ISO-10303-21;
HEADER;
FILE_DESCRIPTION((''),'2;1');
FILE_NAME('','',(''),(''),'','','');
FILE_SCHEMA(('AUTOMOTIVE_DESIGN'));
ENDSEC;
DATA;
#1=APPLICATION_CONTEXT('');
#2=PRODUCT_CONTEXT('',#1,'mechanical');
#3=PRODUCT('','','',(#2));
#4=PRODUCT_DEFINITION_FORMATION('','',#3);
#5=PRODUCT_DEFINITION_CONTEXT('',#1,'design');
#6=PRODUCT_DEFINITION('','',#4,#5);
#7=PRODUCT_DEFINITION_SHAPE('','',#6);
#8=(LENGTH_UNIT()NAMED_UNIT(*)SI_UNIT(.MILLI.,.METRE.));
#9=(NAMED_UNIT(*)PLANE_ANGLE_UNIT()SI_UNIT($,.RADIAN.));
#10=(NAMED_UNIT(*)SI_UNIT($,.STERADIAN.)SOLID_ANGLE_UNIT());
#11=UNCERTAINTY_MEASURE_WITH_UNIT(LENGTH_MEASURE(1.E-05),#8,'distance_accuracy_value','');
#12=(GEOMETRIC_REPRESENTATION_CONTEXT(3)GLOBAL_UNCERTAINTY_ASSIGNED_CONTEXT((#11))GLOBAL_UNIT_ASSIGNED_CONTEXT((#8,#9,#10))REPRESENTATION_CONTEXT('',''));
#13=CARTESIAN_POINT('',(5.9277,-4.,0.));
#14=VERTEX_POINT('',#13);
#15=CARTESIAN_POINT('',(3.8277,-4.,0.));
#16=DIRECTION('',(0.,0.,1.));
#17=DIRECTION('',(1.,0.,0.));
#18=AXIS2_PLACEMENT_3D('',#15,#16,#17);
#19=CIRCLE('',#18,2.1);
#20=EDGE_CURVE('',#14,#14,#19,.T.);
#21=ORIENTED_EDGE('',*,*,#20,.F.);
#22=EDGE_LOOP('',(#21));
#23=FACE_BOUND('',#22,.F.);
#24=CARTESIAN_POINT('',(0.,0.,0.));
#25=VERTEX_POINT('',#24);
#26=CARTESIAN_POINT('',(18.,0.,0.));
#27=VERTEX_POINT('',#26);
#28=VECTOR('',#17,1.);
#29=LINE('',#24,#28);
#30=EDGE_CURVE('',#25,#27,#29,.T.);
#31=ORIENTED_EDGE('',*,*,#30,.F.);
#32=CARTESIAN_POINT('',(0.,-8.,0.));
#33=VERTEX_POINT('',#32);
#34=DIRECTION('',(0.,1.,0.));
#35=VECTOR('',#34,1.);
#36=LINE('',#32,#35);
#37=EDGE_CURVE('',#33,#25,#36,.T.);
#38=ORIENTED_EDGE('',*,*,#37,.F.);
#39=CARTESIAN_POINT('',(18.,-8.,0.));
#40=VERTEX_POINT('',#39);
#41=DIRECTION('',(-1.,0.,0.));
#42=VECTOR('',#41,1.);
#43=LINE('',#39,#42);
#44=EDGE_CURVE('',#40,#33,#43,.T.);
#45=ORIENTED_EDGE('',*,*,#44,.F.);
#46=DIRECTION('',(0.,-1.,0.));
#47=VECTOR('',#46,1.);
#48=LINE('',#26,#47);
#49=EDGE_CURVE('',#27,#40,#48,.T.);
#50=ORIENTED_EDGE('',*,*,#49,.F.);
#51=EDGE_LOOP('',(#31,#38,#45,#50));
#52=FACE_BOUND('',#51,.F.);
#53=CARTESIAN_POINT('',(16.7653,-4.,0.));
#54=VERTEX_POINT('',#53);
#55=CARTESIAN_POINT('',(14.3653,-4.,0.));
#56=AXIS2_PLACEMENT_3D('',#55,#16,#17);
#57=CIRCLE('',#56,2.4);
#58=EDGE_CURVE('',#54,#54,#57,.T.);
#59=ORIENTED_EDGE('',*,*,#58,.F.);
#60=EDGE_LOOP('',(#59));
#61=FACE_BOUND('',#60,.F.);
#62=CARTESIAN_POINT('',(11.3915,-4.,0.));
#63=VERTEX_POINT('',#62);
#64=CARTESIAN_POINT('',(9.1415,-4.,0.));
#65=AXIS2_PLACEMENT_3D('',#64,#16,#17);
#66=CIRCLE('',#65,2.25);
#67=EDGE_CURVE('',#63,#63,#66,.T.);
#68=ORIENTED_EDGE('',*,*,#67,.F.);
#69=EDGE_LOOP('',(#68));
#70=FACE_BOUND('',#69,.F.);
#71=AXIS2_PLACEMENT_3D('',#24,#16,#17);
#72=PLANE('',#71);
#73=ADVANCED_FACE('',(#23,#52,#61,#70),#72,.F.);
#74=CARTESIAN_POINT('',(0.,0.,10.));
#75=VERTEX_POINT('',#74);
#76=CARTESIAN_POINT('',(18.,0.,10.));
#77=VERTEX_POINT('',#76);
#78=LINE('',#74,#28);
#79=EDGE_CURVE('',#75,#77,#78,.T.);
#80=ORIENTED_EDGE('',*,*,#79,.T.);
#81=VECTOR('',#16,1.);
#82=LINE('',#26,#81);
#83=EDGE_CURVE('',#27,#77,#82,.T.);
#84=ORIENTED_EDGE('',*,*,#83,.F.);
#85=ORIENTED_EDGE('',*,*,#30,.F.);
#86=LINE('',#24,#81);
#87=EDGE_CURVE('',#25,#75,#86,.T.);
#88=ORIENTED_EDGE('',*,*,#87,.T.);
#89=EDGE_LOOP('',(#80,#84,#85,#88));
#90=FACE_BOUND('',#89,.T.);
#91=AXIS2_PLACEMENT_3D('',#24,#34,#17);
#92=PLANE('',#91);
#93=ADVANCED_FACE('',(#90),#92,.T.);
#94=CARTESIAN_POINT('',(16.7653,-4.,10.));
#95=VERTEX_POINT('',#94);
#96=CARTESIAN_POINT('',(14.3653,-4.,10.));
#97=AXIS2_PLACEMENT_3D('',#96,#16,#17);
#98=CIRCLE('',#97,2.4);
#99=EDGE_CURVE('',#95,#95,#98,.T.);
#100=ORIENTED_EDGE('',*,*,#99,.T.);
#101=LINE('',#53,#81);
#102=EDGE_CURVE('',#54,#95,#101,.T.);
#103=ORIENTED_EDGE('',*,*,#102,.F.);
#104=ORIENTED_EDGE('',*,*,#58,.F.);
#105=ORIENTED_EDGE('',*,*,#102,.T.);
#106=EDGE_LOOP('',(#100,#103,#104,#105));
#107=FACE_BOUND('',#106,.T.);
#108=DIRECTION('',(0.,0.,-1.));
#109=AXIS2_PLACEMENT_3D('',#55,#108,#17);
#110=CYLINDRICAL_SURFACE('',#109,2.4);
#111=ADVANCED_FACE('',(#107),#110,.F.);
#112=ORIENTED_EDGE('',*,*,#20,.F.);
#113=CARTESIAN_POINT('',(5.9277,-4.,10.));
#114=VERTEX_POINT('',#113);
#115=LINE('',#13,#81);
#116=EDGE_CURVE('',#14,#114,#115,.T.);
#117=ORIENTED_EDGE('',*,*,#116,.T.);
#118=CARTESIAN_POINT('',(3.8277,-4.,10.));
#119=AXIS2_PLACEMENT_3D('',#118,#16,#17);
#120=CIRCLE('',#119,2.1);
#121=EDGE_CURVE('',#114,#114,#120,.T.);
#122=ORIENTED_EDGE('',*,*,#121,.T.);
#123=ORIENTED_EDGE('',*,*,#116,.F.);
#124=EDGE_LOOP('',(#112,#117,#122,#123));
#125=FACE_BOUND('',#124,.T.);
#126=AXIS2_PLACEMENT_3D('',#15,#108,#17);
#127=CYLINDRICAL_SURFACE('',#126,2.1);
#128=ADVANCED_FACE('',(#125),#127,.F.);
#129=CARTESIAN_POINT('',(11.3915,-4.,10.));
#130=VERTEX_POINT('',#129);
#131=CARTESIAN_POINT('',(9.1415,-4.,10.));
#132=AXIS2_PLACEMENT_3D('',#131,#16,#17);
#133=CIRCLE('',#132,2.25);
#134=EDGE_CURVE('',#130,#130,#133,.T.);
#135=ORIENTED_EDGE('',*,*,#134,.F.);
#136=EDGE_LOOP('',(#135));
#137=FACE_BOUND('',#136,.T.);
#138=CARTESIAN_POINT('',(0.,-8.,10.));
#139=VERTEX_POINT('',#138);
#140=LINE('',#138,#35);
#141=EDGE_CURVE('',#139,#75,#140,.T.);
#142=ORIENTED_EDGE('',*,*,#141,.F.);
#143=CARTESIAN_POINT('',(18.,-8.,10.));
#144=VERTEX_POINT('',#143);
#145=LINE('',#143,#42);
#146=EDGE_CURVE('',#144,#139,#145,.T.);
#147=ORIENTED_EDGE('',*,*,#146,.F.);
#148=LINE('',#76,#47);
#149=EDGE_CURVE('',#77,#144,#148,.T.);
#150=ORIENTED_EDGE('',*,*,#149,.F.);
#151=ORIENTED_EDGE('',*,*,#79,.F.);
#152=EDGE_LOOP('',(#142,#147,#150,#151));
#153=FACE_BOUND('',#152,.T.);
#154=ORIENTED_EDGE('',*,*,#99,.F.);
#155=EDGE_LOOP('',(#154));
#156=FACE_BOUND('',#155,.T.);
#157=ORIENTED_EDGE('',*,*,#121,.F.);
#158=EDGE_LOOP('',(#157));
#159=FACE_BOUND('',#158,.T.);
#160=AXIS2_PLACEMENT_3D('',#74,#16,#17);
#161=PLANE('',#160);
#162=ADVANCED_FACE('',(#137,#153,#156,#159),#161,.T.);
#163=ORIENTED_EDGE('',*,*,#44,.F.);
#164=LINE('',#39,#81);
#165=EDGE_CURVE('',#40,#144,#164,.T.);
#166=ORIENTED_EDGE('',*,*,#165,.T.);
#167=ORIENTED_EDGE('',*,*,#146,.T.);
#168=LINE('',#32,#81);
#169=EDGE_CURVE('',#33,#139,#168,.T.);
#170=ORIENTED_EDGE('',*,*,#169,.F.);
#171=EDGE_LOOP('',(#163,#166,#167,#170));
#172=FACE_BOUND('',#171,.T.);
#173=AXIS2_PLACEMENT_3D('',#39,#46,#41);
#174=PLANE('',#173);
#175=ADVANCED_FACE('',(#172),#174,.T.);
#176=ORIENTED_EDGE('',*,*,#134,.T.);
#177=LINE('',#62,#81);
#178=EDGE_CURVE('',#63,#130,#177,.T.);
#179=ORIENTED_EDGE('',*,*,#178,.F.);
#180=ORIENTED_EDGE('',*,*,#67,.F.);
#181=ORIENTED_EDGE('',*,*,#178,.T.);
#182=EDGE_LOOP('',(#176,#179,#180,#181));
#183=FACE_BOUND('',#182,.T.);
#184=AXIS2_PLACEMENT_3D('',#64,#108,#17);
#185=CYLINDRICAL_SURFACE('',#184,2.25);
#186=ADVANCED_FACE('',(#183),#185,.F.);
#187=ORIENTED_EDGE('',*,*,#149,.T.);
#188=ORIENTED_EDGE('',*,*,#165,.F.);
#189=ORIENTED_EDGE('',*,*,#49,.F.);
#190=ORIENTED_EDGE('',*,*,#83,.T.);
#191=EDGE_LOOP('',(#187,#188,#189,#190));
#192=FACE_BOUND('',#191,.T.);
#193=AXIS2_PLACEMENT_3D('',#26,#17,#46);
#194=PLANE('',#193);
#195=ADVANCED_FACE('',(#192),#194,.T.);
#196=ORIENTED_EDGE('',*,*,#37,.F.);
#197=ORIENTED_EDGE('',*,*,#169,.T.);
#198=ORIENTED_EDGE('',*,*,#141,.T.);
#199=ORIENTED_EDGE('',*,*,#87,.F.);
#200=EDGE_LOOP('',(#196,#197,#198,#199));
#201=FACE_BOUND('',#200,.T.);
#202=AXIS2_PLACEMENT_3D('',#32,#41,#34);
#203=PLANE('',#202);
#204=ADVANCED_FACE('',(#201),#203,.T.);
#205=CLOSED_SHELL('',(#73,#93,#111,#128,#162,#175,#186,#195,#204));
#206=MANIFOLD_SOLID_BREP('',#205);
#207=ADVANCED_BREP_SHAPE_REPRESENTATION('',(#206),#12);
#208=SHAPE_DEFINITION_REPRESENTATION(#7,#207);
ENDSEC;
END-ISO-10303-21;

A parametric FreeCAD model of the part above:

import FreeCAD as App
import Part
import Sketcher

V = App.Vector
Q = App.Units.Quantity


def add_polygon(sketch, points):
    """Adds a closed chain of lines whose ends are joined by coincident constraints."""
    first, n = sketch.GeometryCount, len(points)
    for a, b in zip(points, points[1:] + points[:1]):
        sketch.addGeometry(Part.LineSegment(App.Vector(*a, 0), App.Vector(*b, 0)), False)
    for i in range(n):
        sketch.addConstraint(Sketcher.Constraint("Coincident", first + i, 2, first + (i + 1) % n, 1))

doc = App.newDocument("Part")
body = doc.addObject("PartDesign::Body", "Body")

sketch1 = body.newObject("Sketcher::SketchObject", "Sketch")
sketch1.AttachmentSupport = (doc.getObject("XY_Plane"), [""])
sketch1.MapMode = "FlatFace"
add_polygon(sketch1, [(18, 0), (0, 0), (0, -8), (18, -8)])
sketch1.addGeometry(Part.Circle(V(3.8, -4, 0), V(0, 0, 1), 2.1), False)
sketch1.addGeometry(Part.Circle(V(9.1, -4, 0), V(0, 0, 1), 2.2), False)
sketch1.addGeometry(Part.Circle(V(14.4, -4, 0), V(0, 0, 1), 2.4), False)
sketch1.addConstraint([
    Sketcher.Constraint("Horizontal", 0),
    Sketcher.Constraint("Vertical", 1),
    Sketcher.Constraint("Horizontal", 2),
    Sketcher.Constraint("Vertical", 3),
    Sketcher.Constraint("Coincident", 0, 2, -1, 1),
    Sketcher.Constraint("Horizontal", 4, 3, 5, 3),
    Sketcher.Constraint("Horizontal", 5, 3, 6, 3),
    Sketcher.Constraint("Diameter", 4, Q("4.2 mm")),
    Sketcher.Constraint("Diameter", 5, Q("4.5 mm")),
    Sketcher.Constraint("Diameter", 6, Q("4.8 mm")),
    Sketcher.Constraint("DistanceX", 0, 2, 0, 1, Q("18 mm")),
    Sketcher.Constraint("DistanceY", 1, 2, 1, 1, Q("8 mm")),
    Sketcher.Constraint("DistanceY", 4, 3, -1, 1, Q("4 mm")),
    Sketcher.Constraint("DistanceX", -1, 1, 4, 3, Q("3.8277 mm")),
    Sketcher.Constraint("DistanceX", -1, 1, 5, 3, Q("9.1415 mm")),
    Sketcher.Constraint("DistanceX", -1, 1, 6, 3, Q("14.3653 mm")),
])
pad1 = body.newObject("PartDesign::Pad", "Pad")
pad1.Profile = sketch1
pad1.Length = 10

doc.recompute()
